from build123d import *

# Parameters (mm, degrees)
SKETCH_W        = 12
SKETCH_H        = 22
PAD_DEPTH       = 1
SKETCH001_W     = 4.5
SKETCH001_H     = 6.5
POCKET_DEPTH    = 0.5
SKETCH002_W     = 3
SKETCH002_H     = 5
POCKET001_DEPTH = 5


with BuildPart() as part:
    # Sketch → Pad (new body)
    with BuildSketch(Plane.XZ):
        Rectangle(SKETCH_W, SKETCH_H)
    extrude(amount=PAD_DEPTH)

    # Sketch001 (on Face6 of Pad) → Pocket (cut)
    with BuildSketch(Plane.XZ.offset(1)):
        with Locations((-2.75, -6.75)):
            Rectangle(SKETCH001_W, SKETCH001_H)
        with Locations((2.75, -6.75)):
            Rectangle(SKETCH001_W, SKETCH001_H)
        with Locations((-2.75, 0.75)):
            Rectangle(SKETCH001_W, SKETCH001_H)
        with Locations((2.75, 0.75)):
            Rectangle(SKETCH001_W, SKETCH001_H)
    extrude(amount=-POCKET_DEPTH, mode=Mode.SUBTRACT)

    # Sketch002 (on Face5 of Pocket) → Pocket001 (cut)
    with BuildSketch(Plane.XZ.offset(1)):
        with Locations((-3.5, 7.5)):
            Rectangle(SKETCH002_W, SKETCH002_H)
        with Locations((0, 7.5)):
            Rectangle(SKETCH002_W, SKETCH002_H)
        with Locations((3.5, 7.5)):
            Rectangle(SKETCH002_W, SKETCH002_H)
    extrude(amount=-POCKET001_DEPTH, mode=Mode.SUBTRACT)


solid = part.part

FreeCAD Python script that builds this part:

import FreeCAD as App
import Part
import Sketcher
from FreeCAD import Vector
Q = App.Units.Quantity


def add_polygon(sketch, points):
    """Adds a closed chain of lines whose ends are joined by coincident constraints."""
    first, n = sketch.GeometryCount, len(points)
    for a, b in zip(points, points[1:] + points[:1]):
        sketch.addGeometry(Part.LineSegment(App.Vector(*a, 0), App.Vector(*b, 0)), False)
    for i in range(n):
        sketch.addConstraint(Sketcher.Constraint("Coincident", first + i, 2, first + (i + 1) % n, 1))

doc = App.newDocument("Part")
body = doc.addObject("PartDesign::Body", "Body")

sketch1 = body.newObject("Sketcher::SketchObject", "Sketch")
sketch1.AttachmentSupport = (doc.getObject("XZ_Plane"), [""])
sketch1.MapMode = "FlatFace"
add_polygon(sketch1, [(-6, 11), (-6, -11), (6, -11), (6, 11)])
sketch1.addConstraint([
    Sketcher.Constraint("Vertical", 0),
    Sketcher.Constraint("Horizontal", 1),
    Sketcher.Constraint("Vertical", 2),
    Sketcher.Constraint("Horizontal", 3),
    Sketcher.Constraint("Symmetric", 0, 2, 2, 2, -1, 1),
    Sketcher.Constraint("DistanceX", 1, 1, 1, 2, Q("12 mm")),
    Sketcher.Constraint("DistanceY", 0, 2, 0, 1, Q("22 mm")),
])
pad1 = body.newObject("PartDesign::Pad", "Pad")
pad1.Profile = sketch1
pad1.Length = 1

sketch2 = body.newObject("Sketcher::SketchObject", "Sketch001")
sketch2.AttachmentSupport = (doc.getObject("XZ_Plane"), [""])
sketch2.MapMode = "FlatFace"
sketch2.AttachmentOffset = App.Placement(Vector(0, 0, 1), App.Rotation())
add_polygon(sketch2, [(-5, -3.5), (-5, -10), (-0.5, -10), (-0.5, -3.5)])
add_polygon(sketch2, [(0.5, -3.5), (0.5, -10), (5, -10), (5, -3.5)])
add_polygon(sketch2, [(-5, 4), (-5, -2.5), (-0.5, -2.5), (-0.5, 4)])
add_polygon(sketch2, [(0.5, 4), (0.5, -2.5), (5, -2.5), (5, 4)])
sketch2.addConstraint([
    Sketcher.Constraint("Vertical", 0),
    Sketcher.Constraint("Horizontal", 1),
    Sketcher.Constraint("Vertical", 2),
    Sketcher.Constraint("Horizontal", 3),
    Sketcher.Constraint("Vertical", 4),
    Sketcher.Constraint("Horizontal", 5),
    Sketcher.Constraint("Vertical", 6),
    Sketcher.Constraint("Horizontal", 7),
    Sketcher.Constraint("Vertical", 8),
    Sketcher.Constraint("Horizontal", 9),
    Sketcher.Constraint("Vertical", 10),
    Sketcher.Constraint("Horizontal", 11),
    Sketcher.Constraint("Vertical", 12),
    Sketcher.Constraint("Horizontal", 13),
    Sketcher.Constraint("Vertical", 14),
    Sketcher.Constraint("Horizontal", 15),
    Sketcher.Constraint("Symmetric", 1, 2, 4, 2, -2),
    Sketcher.Constraint("Symmetric", 3, 2, 6, 2, -2),
    Sketcher.Constraint("Symmetric", 9, 2, 12, 2, -2),
    Sketcher.Constraint("Symmetric", 11, 2, 14, 2, -2),
    Sketcher.Constraint("Vertical", 3, 2, 8, 2),
    Sketcher.Constraint("Vertical", 2, 2, 9, 2),
    Sketcher.Constraint("Equal", 6, 8),
    Sketcher.Constraint("DistanceX", 1, 1, 1, 2, Q("4.5 mm")),
    Sketcher.Constraint("DistanceY", 0, 2, 0, 1, Q("6.5 mm")),
    Sketcher.Constraint("DistanceX", 0, 2, -1, 1, Q("5 mm")),
    Sketcher.Constraint("DistanceY", 0, 2, -1, 1, Q("10 mm")),
    Sketcher.Constraint("DistanceY", -1, 1, 10, 2, Q("4 mm")),
])
pocket1 = body.newObject("PartDesign::Pocket", "Pocket")
pocket1.Profile = sketch2
pocket1.Length = 0.5

sketch3 = body.newObject("Sketcher::SketchObject", "Sketch002")
sketch3.AttachmentSupport = (doc.getObject("XZ_Plane"), [""])
sketch3.MapMode = "FlatFace"
sketch3.AttachmentOffset = App.Placement(Vector(0, 0, 1), App.Rotation())
add_polygon(sketch3, [(-5, 10), (-5, 5), (-2, 5), (-2, 10)])
add_polygon(sketch3, [(-1.5, 10), (-1.5, 5), (1.5, 5), (1.5, 10)])
add_polygon(sketch3, [(2, 10), (2, 5), (5, 5), (5, 10)])
sketch3.addConstraint([
    Sketcher.Constraint("Vertical", 0),
    Sketcher.Constraint("Horizontal", 1),
    Sketcher.Constraint("Vertical", 2),
    Sketcher.Constraint("Horizontal", 3),
    Sketcher.Constraint("Vertical", 4),
    Sketcher.Constraint("Horizontal", 5),
    Sketcher.Constraint("Vertical", 6),
    Sketcher.Constraint("Horizontal", 7),
    Sketcher.Constraint("Vertical", 8),
    Sketcher.Constraint("Horizontal", 9),
    Sketcher.Constraint("Vertical", 10),
    Sketcher.Constraint("Horizontal", 11),
    Sketcher.Constraint("Symmetric", 1, 2, 8, 2, -2),
    Sketcher.Constraint("Symmetric", 3, 2, 10, 2, -2),
    Sketcher.Constraint("Horizontal", 1, 2, 4, 2),
    Sketcher.Constraint("Horizontal", 3, 2, 6, 2),
    Sketcher.Constraint("Equal", 3, 5),
    Sketcher.Constraint("DistanceX", 1, 1, 1, 2, Q("3 mm")),
    Sketcher.Constraint("DistanceY", 0, 2, 0, 1, Q("5 mm")),
    Sketcher.Constraint("DistanceX", 0, 2, -1, 1, Q("5 mm")),
    Sketcher.Constraint("DistanceY", -1, 1, 0, 2, Q("5 mm")),
    Sketcher.Constraint("DistanceX", 4, 2, -1, 1, Q("1.5 mm")),
])
pocket2 = body.newObject("PartDesign::Pocket", "Pocket001")
pocket2.Profile = sketch3
pocket2.Length = 5

doc.recompute()
